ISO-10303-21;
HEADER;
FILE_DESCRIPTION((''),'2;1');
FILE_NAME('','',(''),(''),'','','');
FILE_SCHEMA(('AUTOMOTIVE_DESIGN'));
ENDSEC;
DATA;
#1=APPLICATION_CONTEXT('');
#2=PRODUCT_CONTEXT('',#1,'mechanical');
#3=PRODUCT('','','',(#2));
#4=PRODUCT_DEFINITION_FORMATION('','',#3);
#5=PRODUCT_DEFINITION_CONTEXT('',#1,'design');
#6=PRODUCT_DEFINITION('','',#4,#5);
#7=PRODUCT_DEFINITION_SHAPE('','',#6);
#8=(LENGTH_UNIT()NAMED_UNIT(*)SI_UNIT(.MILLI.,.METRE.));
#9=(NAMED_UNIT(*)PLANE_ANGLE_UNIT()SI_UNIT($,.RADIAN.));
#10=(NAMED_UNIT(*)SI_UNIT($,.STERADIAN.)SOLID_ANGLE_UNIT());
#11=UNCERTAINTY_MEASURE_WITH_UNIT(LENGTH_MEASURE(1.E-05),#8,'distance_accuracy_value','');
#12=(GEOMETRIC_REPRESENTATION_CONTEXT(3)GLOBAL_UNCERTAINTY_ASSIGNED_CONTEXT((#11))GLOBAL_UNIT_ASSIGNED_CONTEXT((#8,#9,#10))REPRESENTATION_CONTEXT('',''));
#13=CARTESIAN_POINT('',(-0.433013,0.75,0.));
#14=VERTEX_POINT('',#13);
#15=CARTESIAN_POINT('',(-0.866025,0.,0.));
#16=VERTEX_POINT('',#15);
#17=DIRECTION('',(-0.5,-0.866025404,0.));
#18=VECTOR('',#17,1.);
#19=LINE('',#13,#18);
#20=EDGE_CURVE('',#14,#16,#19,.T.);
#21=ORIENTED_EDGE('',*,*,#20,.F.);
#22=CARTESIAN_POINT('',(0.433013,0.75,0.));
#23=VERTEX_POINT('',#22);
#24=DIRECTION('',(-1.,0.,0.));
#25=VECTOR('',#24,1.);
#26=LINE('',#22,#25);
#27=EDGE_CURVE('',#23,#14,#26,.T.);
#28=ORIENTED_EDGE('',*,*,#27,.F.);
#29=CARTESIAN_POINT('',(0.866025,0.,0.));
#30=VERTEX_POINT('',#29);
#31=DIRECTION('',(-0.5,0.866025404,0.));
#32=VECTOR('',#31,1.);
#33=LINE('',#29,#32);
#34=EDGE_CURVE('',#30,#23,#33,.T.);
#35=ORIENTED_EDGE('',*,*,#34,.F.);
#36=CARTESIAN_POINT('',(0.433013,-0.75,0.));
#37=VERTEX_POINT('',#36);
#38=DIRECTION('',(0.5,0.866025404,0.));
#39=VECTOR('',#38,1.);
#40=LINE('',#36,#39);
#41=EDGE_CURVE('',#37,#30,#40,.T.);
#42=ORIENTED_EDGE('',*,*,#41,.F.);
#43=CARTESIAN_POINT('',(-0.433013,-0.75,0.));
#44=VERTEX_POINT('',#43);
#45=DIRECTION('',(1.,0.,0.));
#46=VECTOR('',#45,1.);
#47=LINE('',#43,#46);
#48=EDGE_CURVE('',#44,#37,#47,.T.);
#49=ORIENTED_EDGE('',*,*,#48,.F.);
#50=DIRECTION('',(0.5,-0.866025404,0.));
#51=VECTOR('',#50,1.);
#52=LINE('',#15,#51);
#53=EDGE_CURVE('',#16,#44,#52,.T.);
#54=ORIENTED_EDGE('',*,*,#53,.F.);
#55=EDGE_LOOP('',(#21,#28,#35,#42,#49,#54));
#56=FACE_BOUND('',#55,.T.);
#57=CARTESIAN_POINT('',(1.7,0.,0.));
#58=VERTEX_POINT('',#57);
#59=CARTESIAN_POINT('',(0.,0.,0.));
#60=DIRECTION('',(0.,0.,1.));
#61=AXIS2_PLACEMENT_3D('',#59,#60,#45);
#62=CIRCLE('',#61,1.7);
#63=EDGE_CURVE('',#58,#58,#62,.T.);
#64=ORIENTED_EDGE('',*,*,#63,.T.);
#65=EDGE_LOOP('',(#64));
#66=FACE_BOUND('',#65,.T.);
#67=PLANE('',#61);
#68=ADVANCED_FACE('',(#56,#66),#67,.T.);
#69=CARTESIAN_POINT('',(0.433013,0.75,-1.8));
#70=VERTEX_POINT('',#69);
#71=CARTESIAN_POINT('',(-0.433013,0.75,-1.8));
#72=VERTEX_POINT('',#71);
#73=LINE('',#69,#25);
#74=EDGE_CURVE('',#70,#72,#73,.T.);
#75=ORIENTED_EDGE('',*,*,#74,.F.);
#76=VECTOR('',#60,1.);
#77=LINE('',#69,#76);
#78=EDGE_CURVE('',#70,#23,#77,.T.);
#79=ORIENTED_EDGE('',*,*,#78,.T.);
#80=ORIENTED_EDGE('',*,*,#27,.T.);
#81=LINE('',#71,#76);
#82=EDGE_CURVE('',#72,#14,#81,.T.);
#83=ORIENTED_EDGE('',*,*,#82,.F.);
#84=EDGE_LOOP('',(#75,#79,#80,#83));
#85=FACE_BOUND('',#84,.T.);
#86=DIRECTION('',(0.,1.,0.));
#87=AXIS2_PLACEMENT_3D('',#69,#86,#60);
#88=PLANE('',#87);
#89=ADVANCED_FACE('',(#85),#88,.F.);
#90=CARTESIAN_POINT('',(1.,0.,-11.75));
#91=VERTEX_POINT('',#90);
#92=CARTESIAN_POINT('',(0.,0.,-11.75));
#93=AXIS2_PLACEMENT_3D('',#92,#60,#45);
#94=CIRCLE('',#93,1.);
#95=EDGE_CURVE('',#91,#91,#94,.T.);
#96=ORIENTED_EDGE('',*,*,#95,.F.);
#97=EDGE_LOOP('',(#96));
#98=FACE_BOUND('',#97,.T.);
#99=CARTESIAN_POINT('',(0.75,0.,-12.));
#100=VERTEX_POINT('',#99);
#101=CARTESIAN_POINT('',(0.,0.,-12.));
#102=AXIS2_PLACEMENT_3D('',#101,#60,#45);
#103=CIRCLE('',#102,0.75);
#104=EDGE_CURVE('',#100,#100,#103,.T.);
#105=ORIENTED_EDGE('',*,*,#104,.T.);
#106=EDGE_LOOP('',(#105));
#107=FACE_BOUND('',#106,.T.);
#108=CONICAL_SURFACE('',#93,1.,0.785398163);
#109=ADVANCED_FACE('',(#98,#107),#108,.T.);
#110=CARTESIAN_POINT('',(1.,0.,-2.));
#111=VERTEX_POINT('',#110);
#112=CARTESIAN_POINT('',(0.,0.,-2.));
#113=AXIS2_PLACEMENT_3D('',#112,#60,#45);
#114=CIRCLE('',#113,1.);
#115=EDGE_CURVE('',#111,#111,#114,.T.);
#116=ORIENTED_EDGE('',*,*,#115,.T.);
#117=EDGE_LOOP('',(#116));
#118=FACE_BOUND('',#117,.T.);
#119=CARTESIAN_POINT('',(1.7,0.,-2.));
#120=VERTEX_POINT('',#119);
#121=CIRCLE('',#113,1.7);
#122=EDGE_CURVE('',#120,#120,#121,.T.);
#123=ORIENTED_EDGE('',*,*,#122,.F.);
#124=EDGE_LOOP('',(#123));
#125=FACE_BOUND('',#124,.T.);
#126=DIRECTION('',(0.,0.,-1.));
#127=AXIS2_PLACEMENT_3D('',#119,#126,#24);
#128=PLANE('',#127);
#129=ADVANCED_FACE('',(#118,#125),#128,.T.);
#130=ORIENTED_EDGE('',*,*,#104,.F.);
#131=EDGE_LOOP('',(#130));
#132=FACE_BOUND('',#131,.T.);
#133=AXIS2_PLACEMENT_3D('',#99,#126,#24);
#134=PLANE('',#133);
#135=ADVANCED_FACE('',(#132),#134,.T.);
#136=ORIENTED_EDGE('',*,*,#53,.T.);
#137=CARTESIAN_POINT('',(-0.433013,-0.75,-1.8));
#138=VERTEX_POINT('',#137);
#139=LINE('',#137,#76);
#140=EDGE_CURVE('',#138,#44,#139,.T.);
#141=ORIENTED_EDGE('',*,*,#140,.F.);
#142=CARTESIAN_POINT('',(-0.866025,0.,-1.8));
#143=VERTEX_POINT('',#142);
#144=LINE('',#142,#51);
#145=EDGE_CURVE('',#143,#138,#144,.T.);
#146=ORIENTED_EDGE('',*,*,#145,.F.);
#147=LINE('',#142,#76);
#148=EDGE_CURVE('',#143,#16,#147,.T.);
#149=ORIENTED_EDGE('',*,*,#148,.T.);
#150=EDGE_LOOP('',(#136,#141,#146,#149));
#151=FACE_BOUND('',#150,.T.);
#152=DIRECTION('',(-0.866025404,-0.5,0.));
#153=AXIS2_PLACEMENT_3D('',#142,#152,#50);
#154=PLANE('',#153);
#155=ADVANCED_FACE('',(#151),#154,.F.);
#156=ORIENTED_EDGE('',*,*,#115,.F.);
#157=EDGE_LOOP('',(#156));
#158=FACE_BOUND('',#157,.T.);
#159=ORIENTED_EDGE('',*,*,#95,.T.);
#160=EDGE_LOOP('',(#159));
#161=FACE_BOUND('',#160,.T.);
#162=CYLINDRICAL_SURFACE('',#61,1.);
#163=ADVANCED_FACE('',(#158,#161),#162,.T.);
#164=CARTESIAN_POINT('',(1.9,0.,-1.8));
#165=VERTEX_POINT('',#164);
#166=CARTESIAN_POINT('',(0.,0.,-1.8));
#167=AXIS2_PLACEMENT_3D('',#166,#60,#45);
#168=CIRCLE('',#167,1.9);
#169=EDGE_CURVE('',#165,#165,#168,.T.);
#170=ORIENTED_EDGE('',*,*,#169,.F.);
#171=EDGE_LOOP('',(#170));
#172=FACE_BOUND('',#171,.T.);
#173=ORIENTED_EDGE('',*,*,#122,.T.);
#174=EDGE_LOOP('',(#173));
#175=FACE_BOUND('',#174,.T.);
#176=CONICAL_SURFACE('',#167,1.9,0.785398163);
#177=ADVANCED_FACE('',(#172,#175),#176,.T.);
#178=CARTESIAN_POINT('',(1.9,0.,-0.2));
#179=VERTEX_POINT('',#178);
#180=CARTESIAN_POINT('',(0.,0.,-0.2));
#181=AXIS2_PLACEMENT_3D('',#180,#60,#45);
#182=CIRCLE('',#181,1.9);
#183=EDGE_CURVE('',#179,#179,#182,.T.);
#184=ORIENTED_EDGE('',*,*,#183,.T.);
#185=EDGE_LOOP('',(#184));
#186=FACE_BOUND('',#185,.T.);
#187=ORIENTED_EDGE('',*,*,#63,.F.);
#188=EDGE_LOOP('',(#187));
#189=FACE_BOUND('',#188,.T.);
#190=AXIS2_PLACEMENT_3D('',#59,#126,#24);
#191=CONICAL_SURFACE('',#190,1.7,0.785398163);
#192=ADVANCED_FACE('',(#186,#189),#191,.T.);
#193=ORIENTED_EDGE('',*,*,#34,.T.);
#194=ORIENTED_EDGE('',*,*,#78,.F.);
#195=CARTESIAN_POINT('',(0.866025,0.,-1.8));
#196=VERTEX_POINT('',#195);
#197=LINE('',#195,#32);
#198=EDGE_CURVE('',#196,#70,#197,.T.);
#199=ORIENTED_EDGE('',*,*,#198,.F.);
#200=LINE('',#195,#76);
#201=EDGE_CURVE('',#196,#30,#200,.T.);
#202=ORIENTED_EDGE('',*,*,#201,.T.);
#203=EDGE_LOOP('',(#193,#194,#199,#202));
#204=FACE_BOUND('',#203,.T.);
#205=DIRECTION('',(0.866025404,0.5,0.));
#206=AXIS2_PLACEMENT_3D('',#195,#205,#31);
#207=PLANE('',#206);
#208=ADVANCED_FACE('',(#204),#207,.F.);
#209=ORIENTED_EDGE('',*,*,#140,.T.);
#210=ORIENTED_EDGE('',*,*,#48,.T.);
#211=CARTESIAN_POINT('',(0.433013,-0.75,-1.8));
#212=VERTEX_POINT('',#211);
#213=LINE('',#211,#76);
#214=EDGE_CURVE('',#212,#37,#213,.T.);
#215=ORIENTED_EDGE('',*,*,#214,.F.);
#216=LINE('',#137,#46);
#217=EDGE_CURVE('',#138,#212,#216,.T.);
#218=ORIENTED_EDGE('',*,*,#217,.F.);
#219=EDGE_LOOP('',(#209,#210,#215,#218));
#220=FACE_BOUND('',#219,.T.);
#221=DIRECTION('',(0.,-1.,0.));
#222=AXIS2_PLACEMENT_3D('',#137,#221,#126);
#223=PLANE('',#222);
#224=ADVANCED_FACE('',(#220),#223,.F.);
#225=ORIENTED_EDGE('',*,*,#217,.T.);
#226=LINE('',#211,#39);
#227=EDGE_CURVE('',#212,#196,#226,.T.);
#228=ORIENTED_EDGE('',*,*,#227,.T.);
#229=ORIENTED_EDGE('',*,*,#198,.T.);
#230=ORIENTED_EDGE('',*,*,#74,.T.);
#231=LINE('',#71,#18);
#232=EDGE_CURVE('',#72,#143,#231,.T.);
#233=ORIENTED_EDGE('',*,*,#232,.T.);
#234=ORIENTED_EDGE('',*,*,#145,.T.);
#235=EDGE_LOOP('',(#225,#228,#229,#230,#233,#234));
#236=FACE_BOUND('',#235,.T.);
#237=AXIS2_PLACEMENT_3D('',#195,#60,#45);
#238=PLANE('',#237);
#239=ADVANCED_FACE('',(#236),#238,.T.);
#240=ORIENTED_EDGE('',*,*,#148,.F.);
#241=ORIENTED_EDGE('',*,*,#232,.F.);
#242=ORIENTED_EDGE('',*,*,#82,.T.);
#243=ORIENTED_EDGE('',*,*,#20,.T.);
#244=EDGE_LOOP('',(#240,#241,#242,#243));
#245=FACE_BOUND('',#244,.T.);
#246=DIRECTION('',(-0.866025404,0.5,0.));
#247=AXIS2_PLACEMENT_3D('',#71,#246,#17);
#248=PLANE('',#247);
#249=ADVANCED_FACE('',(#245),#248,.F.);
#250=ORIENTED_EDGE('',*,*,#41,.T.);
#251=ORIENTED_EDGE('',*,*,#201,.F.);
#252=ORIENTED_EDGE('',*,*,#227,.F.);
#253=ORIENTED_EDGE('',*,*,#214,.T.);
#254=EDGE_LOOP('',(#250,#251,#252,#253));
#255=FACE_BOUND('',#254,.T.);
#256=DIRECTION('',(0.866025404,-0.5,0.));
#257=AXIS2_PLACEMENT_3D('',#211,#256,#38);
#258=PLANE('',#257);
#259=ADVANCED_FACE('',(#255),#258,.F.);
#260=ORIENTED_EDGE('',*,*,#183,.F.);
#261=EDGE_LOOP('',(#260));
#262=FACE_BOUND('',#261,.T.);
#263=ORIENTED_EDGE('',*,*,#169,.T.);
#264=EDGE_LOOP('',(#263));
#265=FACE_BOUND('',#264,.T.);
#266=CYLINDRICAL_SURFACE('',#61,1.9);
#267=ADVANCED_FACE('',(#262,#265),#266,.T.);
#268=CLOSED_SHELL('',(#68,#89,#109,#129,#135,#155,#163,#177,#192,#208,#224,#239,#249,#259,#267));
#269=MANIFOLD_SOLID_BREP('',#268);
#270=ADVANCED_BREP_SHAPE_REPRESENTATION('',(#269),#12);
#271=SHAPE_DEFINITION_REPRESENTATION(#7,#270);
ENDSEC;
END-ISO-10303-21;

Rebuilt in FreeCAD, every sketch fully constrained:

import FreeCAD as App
import Part
import Sketcher
from FreeCAD import Vector
Q = App.Units.Quantity


def add_polygon(sketch, points):
    """Adds a closed chain of lines whose ends are joined by coincident constraints."""
    first, n = sketch.GeometryCount, len(points)
    for a, b in zip(points, points[1:] + points[:1]):
        sketch.addGeometry(Part.LineSegment(App.Vector(*a, 0), App.Vector(*b, 0)), False)
    for i in range(n):
        sketch.addConstraint(Sketcher.Constraint("Coincident", first + i, 2, first + (i + 1) % n, 1))

doc = App.newDocument("Part")
params = doc.addObject("Spreadsheet::Sheet", "Params")
for row, (alias, value) in enumerate([
    ("sketch1_height", "12 mm"),
    ("sketch1_width", "1.7 mm"),
    ("sketch1_width2", "0.7 mm"),
    ("sketch1_height2", "1.6 mm"),
    ("sketch1_width3", "0.75 mm"),
    ("revolution_angle", "360 deg"),
    ("pocket1_length", "1.8 mm"),
], start=1):
    params.set(f"A{row}", alias)
    params.set(f"B{row}", "=" + value)
    params.setAlias(f"B{row}", alias)

body = doc.addObject("PartDesign::Body", "Body")

# Sketch on XZ plane
sketch1 = body.newObject("Sketcher::SketchObject", "Sketch")
sketch1.AttachmentSupport = (doc.getObject("XZ_Plane"), [""])
sketch1.MapMode = "FlatFace"
add_polygon(sketch1, [(0, 0), (1.7, 0), (1.9, -0.2), (1.9, -1.8), (1.7, -2), (1, -2), (1, -11.75), (0.75, -12), (0, -12)])  # lines 0-8
sketch1.addConstraint(Sketcher.Constraint("Horizontal", 0))
sketch1.addConstraint(Sketcher.Constraint("Vertical", 2))
sketch1.addConstraint(Sketcher.Constraint("Horizontal", 4))
sketch1.addConstraint(Sketcher.Constraint("Vertical", 5))
sketch1.addConstraint(Sketcher.Constraint("Horizontal", 7))
sketch1.addConstraint(Sketcher.Constraint("Vertical", 8))
sketch1.addConstraint(Sketcher.Constraint("Coincident", 8, 2, -1, 1))
sketch1.addConstraint(Sketcher.Constraint("Perpendicular", 1, 3))
sketch1.addConstraint(Sketcher.Constraint("Parallel", 3, 6))
sketch1.addConstraint(Sketcher.Constraint("Vertical", 0, 2, 3, 2))
sketch1.addConstraint(Sketcher.Constraint("Equal", 1, 3))
sketch1.addConstraint(Sketcher.Constraint("DistanceY", 8, 1, 8, 2, Q("12 mm")))
sketch1.addConstraint(Sketcher.Constraint("DistanceX", 0, 1, 0, 2, Q("1.7 mm")))
sketch1.addConstraint(Sketcher.Constraint("DistanceX", 4, 2, 4, 1, Q("0.7 mm")))
sketch1.addConstraint(Sketcher.Constraint("DistanceY", 2, 2, 2, 1, Q("1.6 mm")))
sketch1.addConstraint(Sketcher.Constraint("DistanceY", 3, 2, -1, 1, Q("2 mm")))
sketch1.addConstraint(Sketcher.Constraint("DistanceX", 7, 2, 7, 1, Q("0.75 mm")))
sketch1.setExpression("Constraints[20]", "Params.sketch1_height")
sketch1.setExpression("Constraints[21]", "Params.sketch1_width")
sketch1.setExpression("Constraints[22]", "Params.sketch1_width2")
sketch1.setExpression("Constraints[23]", "Params.sketch1_height2")
sketch1.setExpression("Constraints[25]", "Params.sketch1_width3")
revolution = body.newObject("PartDesign::Revolution", "Revolution")
revolution.Profile = sketch1
revolution.ReferenceAxis = (sketch1, ["V_Axis"])
revolution.setExpression("Angle", "Params.revolution_angle")

# Sketch on XY plane
sketch2 = body.newObject("Sketcher::SketchObject", "Sketch001")
sketch2.AttachmentSupport = (doc.getObject("XY_Plane"), [""])
sketch2.MapMode = "FlatFace"
add_polygon(sketch2, [(0.866025, 0), (0.433013, 0.75), (-0.433013, 0.75), (-0.866025, 0), (-0.433013, -0.75), (0.433013, -0.75)])  # lines 0-5
sketch2.addConstraint(Sketcher.Constraint("Horizontal", 1))
sketch2.addConstraint(Sketcher.Constraint("Horizontal", 4))
sketch2.addConstraint(Sketcher.Constraint("Symmetric", 0, 2, 3, 2, -1, 1))
sketch2.addConstraint(Sketcher.Constraint("Symmetric", 2, 2, 5, 2, -1, 1))
sketch2.addConstraint(Sketcher.Constraint("PointOnObject", 2, 2, -1))
sketch2.addConstraint(Sketcher.Constraint("Parallel", 2, 5))
sketch2.addConstraint(Sketcher.Constraint("Vertical", 1, 2, 3, 2))
sketch2.addConstraint(Sketcher.Constraint("Angle", 0, Q("120 deg")))
sketch2.addConstraint(Sketcher.Constraint("DistanceY", 3, 2, 1, 2, Q("1.5 mm")))
sketch2.addConstraint(Sketcher.Constraint("DistanceX", 1, 2, 1, 1, Q("0.866025 mm")))
pocket1 = body.newObject("PartDesign::Pocket", "Pocket")
pocket1.Profile = sketch2
pocket1.setExpression("Length", "Params.pocket1_length")

doc.recompute()
